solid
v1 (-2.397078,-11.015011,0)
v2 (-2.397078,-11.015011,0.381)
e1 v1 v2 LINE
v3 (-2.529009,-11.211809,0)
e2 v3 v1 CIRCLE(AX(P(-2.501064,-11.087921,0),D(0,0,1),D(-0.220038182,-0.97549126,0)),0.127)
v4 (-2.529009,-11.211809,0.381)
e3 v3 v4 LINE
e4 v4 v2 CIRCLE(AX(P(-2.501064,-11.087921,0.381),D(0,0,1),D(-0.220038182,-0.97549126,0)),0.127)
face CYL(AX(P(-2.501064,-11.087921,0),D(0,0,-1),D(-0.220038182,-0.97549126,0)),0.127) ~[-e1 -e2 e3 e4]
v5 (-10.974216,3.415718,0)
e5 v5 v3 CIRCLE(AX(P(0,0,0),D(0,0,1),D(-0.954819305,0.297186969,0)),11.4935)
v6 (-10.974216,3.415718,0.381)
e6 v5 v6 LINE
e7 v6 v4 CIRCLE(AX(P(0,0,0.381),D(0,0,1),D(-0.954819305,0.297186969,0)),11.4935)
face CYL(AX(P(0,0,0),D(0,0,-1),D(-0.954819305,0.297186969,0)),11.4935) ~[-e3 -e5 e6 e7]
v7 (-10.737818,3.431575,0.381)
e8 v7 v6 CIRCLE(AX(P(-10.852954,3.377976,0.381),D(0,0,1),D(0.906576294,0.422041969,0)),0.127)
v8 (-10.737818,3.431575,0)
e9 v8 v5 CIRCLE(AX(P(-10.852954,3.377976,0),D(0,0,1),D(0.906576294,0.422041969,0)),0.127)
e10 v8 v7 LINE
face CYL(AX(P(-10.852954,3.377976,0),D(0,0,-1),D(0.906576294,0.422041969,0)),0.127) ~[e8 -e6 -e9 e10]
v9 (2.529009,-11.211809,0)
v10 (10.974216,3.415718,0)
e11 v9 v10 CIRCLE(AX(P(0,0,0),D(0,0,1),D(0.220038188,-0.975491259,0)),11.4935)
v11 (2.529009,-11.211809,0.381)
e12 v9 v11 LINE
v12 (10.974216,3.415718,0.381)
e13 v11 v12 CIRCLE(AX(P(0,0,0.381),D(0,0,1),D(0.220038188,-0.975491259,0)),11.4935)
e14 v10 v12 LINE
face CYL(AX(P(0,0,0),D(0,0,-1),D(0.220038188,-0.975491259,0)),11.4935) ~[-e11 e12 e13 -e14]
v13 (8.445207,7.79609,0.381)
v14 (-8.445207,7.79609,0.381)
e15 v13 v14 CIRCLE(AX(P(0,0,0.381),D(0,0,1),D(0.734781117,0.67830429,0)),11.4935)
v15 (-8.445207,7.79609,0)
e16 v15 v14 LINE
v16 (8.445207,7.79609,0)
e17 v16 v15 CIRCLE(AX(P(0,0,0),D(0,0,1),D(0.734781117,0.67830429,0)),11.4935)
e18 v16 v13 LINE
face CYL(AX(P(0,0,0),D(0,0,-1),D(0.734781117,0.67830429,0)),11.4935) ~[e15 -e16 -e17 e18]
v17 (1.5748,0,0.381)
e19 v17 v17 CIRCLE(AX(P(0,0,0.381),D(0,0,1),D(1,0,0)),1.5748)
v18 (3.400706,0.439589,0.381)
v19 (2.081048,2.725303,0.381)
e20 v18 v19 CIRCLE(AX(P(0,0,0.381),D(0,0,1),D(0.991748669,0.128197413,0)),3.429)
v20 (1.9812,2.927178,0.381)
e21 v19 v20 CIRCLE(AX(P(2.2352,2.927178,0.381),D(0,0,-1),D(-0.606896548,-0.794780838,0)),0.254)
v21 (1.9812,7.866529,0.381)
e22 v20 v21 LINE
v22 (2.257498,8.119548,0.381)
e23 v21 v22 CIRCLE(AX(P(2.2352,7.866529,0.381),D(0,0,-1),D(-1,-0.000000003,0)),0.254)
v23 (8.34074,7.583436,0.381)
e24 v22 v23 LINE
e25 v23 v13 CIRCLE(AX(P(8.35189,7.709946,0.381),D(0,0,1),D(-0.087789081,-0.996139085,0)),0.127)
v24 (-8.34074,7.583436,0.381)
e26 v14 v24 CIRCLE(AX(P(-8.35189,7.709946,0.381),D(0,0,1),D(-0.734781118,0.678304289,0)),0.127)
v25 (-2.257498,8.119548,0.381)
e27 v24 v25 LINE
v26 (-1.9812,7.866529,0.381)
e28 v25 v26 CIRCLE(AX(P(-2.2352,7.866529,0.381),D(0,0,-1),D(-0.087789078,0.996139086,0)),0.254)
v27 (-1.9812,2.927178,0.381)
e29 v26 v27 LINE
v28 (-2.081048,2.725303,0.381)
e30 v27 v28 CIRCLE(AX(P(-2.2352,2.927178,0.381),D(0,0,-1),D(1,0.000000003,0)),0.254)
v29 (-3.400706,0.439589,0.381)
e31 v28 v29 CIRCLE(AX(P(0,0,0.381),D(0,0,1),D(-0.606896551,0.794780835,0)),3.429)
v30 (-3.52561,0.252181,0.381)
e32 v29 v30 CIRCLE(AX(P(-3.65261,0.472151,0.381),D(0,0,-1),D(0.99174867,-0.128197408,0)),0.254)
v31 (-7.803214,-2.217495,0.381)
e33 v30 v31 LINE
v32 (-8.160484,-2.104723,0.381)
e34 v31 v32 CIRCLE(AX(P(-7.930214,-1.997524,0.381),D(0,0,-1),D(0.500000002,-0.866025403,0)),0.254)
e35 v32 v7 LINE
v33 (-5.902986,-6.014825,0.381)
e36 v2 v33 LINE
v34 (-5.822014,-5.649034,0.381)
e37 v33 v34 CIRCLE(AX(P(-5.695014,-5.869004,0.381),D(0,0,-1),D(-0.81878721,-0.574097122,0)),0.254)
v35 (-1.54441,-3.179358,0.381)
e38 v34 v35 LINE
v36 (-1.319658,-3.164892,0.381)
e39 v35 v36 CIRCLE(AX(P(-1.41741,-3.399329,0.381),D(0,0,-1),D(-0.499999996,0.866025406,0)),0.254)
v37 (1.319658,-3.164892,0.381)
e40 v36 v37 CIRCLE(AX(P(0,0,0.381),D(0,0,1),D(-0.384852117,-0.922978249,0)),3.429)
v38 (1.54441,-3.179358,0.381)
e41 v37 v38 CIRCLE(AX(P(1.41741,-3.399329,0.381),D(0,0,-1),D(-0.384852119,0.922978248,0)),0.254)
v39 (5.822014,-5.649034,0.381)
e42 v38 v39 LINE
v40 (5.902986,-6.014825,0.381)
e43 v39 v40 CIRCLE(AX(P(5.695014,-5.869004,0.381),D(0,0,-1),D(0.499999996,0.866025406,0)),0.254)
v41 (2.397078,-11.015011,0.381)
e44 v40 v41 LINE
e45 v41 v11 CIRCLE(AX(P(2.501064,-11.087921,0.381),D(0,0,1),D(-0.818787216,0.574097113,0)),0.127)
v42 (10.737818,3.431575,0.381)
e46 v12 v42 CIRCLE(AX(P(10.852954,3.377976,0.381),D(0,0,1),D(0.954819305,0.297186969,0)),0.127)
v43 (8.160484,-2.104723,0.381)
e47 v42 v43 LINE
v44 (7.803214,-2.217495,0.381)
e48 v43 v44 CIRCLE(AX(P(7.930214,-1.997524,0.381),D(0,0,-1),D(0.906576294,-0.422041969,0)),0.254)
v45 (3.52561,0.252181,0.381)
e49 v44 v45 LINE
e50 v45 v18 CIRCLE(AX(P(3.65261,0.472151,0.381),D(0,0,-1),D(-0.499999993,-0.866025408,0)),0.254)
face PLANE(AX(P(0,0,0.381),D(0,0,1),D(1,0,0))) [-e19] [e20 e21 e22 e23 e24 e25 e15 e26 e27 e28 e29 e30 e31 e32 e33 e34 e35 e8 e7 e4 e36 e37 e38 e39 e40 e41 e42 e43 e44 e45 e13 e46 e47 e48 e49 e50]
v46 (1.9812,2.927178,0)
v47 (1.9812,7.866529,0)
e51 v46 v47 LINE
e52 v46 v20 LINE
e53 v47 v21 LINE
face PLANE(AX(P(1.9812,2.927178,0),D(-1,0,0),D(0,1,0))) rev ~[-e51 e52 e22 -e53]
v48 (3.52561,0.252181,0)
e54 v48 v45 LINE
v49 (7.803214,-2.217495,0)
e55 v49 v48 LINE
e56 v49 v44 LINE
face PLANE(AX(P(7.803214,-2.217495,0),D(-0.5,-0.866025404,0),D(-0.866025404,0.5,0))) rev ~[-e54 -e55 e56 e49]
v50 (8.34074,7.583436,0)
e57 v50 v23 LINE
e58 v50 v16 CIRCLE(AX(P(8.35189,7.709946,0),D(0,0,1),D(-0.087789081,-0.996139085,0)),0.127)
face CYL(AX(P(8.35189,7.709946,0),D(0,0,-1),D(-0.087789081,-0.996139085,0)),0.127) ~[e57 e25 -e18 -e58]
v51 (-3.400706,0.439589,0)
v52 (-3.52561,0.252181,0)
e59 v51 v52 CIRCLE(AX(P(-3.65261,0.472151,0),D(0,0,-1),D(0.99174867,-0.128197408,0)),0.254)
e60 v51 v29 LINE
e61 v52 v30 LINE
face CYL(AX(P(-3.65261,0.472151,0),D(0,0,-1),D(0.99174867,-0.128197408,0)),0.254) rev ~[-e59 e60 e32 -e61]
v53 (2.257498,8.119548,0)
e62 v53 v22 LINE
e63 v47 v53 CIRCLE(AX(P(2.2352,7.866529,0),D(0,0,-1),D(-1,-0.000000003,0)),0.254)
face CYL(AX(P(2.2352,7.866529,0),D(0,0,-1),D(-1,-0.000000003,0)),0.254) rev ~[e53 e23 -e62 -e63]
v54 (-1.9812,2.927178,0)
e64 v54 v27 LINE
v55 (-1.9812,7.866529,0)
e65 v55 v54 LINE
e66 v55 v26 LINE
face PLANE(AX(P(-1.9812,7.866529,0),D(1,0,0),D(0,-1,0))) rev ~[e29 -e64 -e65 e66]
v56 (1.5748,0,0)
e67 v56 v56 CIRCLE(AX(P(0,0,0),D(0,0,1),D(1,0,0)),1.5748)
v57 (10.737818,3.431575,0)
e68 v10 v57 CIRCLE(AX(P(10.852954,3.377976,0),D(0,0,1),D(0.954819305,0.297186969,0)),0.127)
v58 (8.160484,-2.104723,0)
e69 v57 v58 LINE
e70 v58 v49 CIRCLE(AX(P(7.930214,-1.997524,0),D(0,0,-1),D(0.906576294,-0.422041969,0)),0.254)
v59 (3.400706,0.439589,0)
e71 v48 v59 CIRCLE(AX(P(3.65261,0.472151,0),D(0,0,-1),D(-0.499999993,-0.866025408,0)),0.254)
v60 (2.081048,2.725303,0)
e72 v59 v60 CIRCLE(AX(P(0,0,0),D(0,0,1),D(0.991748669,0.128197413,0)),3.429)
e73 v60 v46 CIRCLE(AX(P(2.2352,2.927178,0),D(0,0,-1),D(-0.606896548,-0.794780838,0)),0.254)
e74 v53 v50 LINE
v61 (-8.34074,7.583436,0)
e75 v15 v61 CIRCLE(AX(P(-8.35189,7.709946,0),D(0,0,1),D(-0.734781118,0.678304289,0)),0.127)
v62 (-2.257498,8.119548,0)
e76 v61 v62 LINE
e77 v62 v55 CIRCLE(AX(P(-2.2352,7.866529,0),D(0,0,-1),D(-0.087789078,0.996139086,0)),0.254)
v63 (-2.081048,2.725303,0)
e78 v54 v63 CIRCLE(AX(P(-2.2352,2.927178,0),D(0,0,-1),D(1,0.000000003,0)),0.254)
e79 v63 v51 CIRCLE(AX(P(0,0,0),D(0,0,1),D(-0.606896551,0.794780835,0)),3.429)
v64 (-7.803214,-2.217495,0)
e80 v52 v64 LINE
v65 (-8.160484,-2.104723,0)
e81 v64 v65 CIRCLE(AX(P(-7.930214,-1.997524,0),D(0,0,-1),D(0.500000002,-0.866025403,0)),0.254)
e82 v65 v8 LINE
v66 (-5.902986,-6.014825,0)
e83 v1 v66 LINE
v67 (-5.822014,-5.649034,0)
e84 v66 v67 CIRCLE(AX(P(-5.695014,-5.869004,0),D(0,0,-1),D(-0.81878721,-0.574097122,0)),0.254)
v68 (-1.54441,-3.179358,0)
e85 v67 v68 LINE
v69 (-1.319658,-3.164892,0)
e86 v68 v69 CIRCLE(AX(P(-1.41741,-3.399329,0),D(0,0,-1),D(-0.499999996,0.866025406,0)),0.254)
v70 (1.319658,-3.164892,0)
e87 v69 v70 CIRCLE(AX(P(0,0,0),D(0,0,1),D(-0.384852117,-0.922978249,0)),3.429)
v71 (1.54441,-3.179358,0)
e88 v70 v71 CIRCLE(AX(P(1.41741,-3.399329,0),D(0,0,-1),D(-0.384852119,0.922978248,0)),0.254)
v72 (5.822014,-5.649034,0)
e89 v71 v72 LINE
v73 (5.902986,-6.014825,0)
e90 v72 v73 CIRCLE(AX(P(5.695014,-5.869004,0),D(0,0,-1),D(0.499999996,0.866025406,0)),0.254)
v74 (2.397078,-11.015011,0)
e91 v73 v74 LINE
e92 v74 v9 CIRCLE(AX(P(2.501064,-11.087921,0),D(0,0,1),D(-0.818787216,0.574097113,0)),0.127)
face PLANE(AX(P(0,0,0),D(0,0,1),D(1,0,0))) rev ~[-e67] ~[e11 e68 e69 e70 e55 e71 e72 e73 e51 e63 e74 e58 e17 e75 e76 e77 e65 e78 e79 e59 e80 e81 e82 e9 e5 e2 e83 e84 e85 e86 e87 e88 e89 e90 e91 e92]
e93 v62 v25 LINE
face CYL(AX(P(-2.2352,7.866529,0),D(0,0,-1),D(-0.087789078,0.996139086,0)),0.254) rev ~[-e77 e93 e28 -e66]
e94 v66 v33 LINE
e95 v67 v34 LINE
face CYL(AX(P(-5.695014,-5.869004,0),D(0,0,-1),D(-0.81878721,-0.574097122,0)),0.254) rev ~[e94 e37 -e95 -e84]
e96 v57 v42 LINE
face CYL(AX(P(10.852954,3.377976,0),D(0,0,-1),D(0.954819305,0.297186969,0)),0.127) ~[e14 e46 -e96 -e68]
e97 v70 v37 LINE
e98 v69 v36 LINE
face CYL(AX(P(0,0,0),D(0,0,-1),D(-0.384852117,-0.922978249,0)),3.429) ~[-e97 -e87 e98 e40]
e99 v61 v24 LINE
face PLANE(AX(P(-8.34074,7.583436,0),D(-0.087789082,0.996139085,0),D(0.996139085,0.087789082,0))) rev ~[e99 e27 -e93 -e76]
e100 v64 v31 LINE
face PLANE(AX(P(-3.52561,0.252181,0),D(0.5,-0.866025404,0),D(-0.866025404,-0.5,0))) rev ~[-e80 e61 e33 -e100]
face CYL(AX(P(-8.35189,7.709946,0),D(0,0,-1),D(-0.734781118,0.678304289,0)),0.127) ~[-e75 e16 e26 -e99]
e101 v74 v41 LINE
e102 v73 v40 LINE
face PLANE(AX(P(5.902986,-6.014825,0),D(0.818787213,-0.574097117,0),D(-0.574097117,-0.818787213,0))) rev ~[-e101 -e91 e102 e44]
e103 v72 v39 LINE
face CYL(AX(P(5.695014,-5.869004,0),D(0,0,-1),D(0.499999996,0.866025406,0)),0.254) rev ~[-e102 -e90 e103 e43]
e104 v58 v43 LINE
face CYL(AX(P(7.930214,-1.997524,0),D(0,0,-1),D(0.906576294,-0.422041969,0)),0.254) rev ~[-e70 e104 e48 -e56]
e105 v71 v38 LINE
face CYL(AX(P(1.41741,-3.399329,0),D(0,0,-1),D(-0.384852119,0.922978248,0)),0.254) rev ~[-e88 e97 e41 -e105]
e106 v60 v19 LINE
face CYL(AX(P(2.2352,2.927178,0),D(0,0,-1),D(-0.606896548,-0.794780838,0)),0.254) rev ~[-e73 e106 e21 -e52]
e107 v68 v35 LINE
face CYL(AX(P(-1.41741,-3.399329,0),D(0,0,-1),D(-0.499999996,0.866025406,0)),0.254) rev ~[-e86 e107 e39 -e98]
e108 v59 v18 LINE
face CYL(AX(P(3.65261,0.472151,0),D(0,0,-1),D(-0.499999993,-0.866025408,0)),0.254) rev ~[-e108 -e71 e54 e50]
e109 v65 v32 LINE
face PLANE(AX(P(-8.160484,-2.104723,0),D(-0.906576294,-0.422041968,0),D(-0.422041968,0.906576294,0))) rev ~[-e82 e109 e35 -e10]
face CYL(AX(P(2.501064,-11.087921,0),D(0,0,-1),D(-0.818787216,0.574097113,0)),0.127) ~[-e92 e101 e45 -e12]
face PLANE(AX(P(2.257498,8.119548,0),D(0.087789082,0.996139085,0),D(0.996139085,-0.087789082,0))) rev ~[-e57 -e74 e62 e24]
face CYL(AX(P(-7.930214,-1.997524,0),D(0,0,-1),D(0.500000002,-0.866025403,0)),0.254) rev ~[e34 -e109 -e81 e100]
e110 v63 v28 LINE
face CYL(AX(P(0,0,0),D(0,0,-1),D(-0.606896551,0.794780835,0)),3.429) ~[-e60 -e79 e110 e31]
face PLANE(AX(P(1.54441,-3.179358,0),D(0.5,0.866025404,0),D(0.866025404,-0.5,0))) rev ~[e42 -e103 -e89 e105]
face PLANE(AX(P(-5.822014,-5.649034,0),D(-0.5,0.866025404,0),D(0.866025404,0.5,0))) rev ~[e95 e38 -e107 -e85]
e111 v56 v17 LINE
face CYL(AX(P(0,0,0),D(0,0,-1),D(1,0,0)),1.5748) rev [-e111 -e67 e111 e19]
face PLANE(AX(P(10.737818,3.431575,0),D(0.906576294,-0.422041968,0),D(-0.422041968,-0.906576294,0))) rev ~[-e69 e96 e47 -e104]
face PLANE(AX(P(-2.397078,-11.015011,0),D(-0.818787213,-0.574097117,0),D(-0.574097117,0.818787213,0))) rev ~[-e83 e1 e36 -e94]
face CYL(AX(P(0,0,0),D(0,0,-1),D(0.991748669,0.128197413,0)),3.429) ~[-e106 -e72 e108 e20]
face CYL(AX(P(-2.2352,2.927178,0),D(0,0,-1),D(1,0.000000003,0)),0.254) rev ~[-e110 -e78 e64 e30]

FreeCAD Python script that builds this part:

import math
import FreeCAD as App
import Part
import Sketcher
from FreeCAD import Vector
Q = App.Units.Quantity

doc = App.newDocument("Part")
body = doc.addObject("PartDesign::Body", "Body")

# Sketch on XY plane
sketch1 = body.newObject("Sketcher::SketchObject", "Sketch")
sketch1.AttachmentSupport = (doc.getObject("XY_Plane"), [""])
sketch1.MapMode = "FlatFace"
sketch1.addGeometry([
    Part.LineSegment(Vector(1.9812, 2.927178, 0), Vector(1.9812, 7.866529, 0)),  # 0
    Part.ArcOfCircle(Part.Circle(Vector(2.2352, 7.866529, 0), Vector(0, 0, 1), 0.254), math.radians(84.963573), math.radians(180)),  # 1
    Part.LineSegment(Vector(2.257498, 8.119548, 0), Vector(8.34074, 7.583436, 0)),  # 2
    Part.ArcOfCircle(Part.Circle(Vector(8.35189, 7.709946, 0), Vector(0, 0, 1), 0.127), math.radians(-95.036427), math.radians(42.711276)),  # 3
    Part.ArcOfCircle(Part.Circle(Vector(0, 0, 0), Vector(0, 0, 1), 11.4935), math.radians(42.711276), math.radians(137.288724)),  # 4
    Part.ArcOfCircle(Part.Circle(Vector(-8.35189, 7.709946, 0), Vector(0, 0, 1), 0.127), math.radians(137.288724), math.radians(275.036427)),  # 5
    Part.LineSegment(Vector(-8.34074, 7.583436, 0), Vector(-2.257498, 8.119548, 0)),  # 6
    Part.ArcOfCircle(Part.Circle(Vector(-2.2352, 7.866529, 0), Vector(0, 0, 1), 0.254), math.radians(0), math.radians(95.036427)),  # 7
    Part.LineSegment(Vector(-1.9812, 7.866529, 0), Vector(-1.9812, 2.927178, 0)),  # 8
    Part.ArcOfCircle(Part.Circle(Vector(-2.2352, 2.927178, 0), Vector(0, 0, 1), 0.254), math.radians(-52.63456), math.radians(0)),  # 9
    Part.ArcOfCircle(Part.Circle(Vector(0, 0, 0), Vector(0, 0, 1), 3.429), math.radians(127.36544), math.radians(172.63456)),  # 10
    Part.ArcOfCircle(Part.Circle(Vector(-3.65261, 0.472151, 0), Vector(0, 0, 1), 0.254), math.radians(-60), math.radians(-7.36544)),  # 11
    Part.LineSegment(Vector(-3.52561, 0.252181, 0), Vector(-7.803214, -2.217495, 0)),  # 12
    Part.ArcOfCircle(Part.Circle(Vector(-7.930214, -1.997524, 0), Vector(0, 0, 1), 0.254), math.radians(-155.036427), math.radians(-60)),  # 13
    Part.LineSegment(Vector(-8.160484, -2.104723, 0), Vector(-10.737818, 3.431575, 0)),  # 14
    Part.ArcOfCircle(Part.Circle(Vector(-10.852954, 3.377976, 0), Vector(0, 0, 1), 0.127), math.radians(24.963573), math.radians(162.711276)),  # 15
    Part.ArcOfCircle(Part.Circle(Vector(0, 0, 0), Vector(0, 0, 1), 11.4935), math.radians(162.711276), math.radians(257.288724)),  # 16
    Part.ArcOfCircle(Part.Circle(Vector(-2.501064, -11.087921, 0), Vector(0, 0, 1), 0.127), math.radians(-102.711276), math.radians(35.036427)),  # 17
    Part.LineSegment(Vector(-2.397078, -11.015011, 0), Vector(-5.902986, -6.014825, 0)),  # 18
    Part.ArcOfCircle(Part.Circle(Vector(-5.695014, -5.869004, 0), Vector(0, 0, 1), 0.254), math.radians(120), math.radians(215.036428)),  # 19
    Part.LineSegment(Vector(-5.822014, -5.649034, 0), Vector(-1.54441, -3.179358, 0)),  # 20
    Part.ArcOfCircle(Part.Circle(Vector(-1.41741, -3.399329, 0), Vector(0, 0, 1), 0.254), math.radians(67.36544), math.radians(120)),  # 21
    Part.ArcOfCircle(Part.Circle(Vector(0, 0, 0), Vector(0, 0, 1), 3.429), math.radians(-112.63456), math.radians(-67.36544)),  # 22
    Part.ArcOfCircle(Part.Circle(Vector(1.41741, -3.399329, 0), Vector(0, 0, 1), 0.254), math.radians(60), math.radians(112.63456)),  # 23
    Part.LineSegment(Vector(1.54441, -3.179358, 0), Vector(5.822014, -5.649034, 0)),  # 24
    Part.ArcOfCircle(Part.Circle(Vector(5.695014, -5.869004, 0), Vector(0, 0, 1), 0.254), math.radians(-35.036428), math.radians(60)),  # 25
    Part.LineSegment(Vector(5.902986, -6.014825, 0), Vector(2.397078, -11.015011, 0)),  # 26
    Part.ArcOfCircle(Part.Circle(Vector(2.501064, -11.087921, 0), Vector(0, 0, 1), 0.127), math.radians(144.963573), math.radians(282.711276)),  # 27
    Part.ArcOfCircle(Part.Circle(Vector(0, 0, 0), Vector(0, 0, 1), 11.4935), math.radians(-77.288724), math.radians(17.288724)),  # 28
    Part.ArcOfCircle(Part.Circle(Vector(10.852954, 3.377976, 0), Vector(0, 0, 1), 0.127), math.radians(17.288724), math.radians(155.036427)),  # 29
    Part.LineSegment(Vector(10.737818, 3.431575, 0), Vector(8.160484, -2.104723, 0)),  # 30
    Part.ArcOfCircle(Part.Circle(Vector(7.930214, -1.997524, 0), Vector(0, 0, 1), 0.254), math.radians(-120), math.radians(-24.963573)),  # 31
    Part.LineSegment(Vector(7.803214, -2.217495, 0), Vector(3.52561, 0.252181, 0)),  # 32
    Part.ArcOfCircle(Part.Circle(Vector(3.65261, 0.472151, 0), Vector(0, 0, 1), 0.254), math.radians(-172.63456), math.radians(-120)),  # 33
    Part.ArcOfCircle(Part.Circle(Vector(0, 0, 0), Vector(0, 0, 1), 3.429), math.radians(7.36544), math.radians(52.63456)),  # 34
    Part.ArcOfCircle(Part.Circle(Vector(2.2352, 2.927178, 0), Vector(0, 0, 1), 0.254), math.radians(180), math.radians(232.63456)),  # 35
    Part.Circle(Vector(0, 0, 0), Vector(0, 0, 1), 1.5748),  # 36
], False)
sketch1.addConstraint([
    Sketcher.Constraint("Tangent", 0, 2, 1, 2),
    Sketcher.Constraint("Tangent", 1, 1, 2, 1),
    Sketcher.Constraint("Tangent", 2, 2, 3, 1),
    Sketcher.Constraint("Tangent", 3, 2, 4, 1),
    Sketcher.Constraint("Tangent", 4, 2, 5, 1),
    Sketcher.Constraint("Tangent", 5, 2, 6, 1),
    Sketcher.Constraint("Tangent", 6, 2, 7, 2),
    Sketcher.Constraint("Tangent", 7, 1, 8, 1),
    Sketcher.Constraint("Tangent", 8, 2, 9, 2),
    Sketcher.Constraint("Tangent", 9, 1, 10, 1),
    Sketcher.Constraint("Tangent", 10, 2, 11, 2),
    Sketcher.Constraint("Tangent", 11, 1, 12, 1),
    Sketcher.Constraint("Tangent", 12, 2, 13, 2),
    Sketcher.Constraint("Tangent", 13, 1, 14, 1),
    Sketcher.Constraint("Tangent", 14, 2, 15, 1),
    Sketcher.Constraint("Tangent", 15, 2, 16, 1),
    Sketcher.Constraint("Tangent", 16, 2, 17, 1),
    Sketcher.Constraint("Tangent", 17, 2, 18, 1),
    Sketcher.Constraint("Tangent", 18, 2, 19, 2),
    Sketcher.Constraint("Tangent", 19, 1, 20, 1),
    Sketcher.Constraint("Tangent", 20, 2, 21, 2),
    Sketcher.Constraint("Tangent", 21, 1, 22, 1),
    Sketcher.Constraint("Tangent", 22, 2, 23, 2),
    Sketcher.Constraint("Tangent", 23, 1, 24, 1),
    Sketcher.Constraint("Tangent", 24, 2, 25, 2),
    Sketcher.Constraint("Tangent", 25, 1, 26, 1),
    Sketcher.Constraint("Tangent", 26, 2, 27, 1),
    Sketcher.Constraint("Tangent", 27, 2, 28, 1),
    Sketcher.Constraint("Tangent", 28, 2, 29, 1),
    Sketcher.Constraint("Tangent", 29, 2, 30, 1),
    Sketcher.Constraint("Tangent", 30, 2, 31, 2),
    Sketcher.Constraint("Tangent", 31, 1, 32, 1),
    Sketcher.Constraint("Tangent", 32, 2, 33, 2),
    Sketcher.Constraint("Tangent", 33, 1, 34, 1),
    Sketcher.Constraint("Tangent", 34, 2, 35, 2),
    Sketcher.Constraint("Tangent", 35, 1, 0, 1),
    Sketcher.Constraint("Vertical", 0),
    Sketcher.Constraint("Vertical", 8),
    Sketcher.Constraint("Coincident", 4, 3, -1, 1),
    Sketcher.Constraint("Coincident", 10, 3, -1, 1),
    Sketcher.Constraint("Coincident", 16, 3, -1, 1),
    Sketcher.Constraint("Coincident", 22, 3, -1, 1),
    Sketcher.Constraint("Coincident", 28, 3, -1, 1),
    Sketcher.Constraint("Coincident", 34, 3, -1, 1),
    Sketcher.Constraint("Coincident", 36, 3, -1, 1),
    Sketcher.Constraint("Equal", 3, 5),
    Sketcher.Constraint("Equal", 1, 7),
    Sketcher.Constraint("Equal", 7, 9),
    Sketcher.Constraint("Equal", 9, 11),
    Sketcher.Constraint("Equal", 11, 13),
    Sketcher.Constraint("Equal", 5, 15),
    Sketcher.Constraint("Equal", 4, 16),
    Sketcher.Constraint("Equal", 15, 17),
    Sketcher.Constraint("Equal", 13, 19),
    Sketcher.Constraint("Equal", 19, 21),
    Sketcher.Constraint("Equal", 10, 22),
    Sketcher.Constraint("Equal", 21, 23),
    Sketcher.Constraint("Equal", 23, 25),
    Sketcher.Constraint("Equal", 17, 27),
    Sketcher.Constraint("Equal", 16, 28),
    Sketcher.Constraint("Equal", 27, 29),
    Sketcher.Constraint("Equal", 25, 31),
    Sketcher.Constraint("Equal", 31, 33),
    Sketcher.Constraint("Equal", 22, 34),
    Sketcher.Constraint("Equal", 33, 35),
    Sketcher.Constraint("Symmetric", 1, 3, 7, 3, -2),
    Sketcher.Constraint("Symmetric", 19, 3, 25, 3, -2),
    Sketcher.Constraint("Symmetric", 13, 3, 31, 3, -2),
    Sketcher.Constraint("Parallel", 12, 20),
    Sketcher.Constraint("Parallel", 24, 32),
    Sketcher.Constraint("Horizontal", 3, 3, 5, 3),
    Sketcher.Constraint("Horizontal", 21, 3, 23, 3),
    Sketcher.Constraint("Horizontal", 17, 3, 27, 3),
    Sketcher.Constraint("Horizontal", 15, 3, 29, 3),
    Sketcher.Constraint("Equal", 6, 14),
    Sketcher.Constraint("Equal", 14, 18),
    Sketcher.Constraint("Equal", 12, 20),
    Sketcher.Constraint("Radius", 1, Q("0.01 in")),
    Sketcher.Constraint("Diameter", 36, Q("0.124 in")),
    Sketcher.Constraint("Angle", 12, Q("-150 deg")),
    Sketcher.Constraint("Radius", 3, Q("0.005 in")),
    Sketcher.Constraint("Radius", 10, Q("0.135 in")),
    Sketcher.Constraint("Radius", 4, Q("0.4525 in")),
    Sketcher.Constraint("DistanceX", -1, 1, 1, 3, Q("0.088 in")),
    Sketcher.Constraint("DistanceY", 0, 1, 0, 2, 4.939351),
    Sketcher.Constraint("DistanceX", -1, 1, 1, 1, 2.257498),
    Sketcher.Constraint("Distance", 12, 4.939351),
    Sketcher.Constraint("DistanceX", 11, 3, -1, 1, 3.65261),
    Sketcher.Constraint("DistanceY", 17, 3, -1, 1, 11.087921),
])
pad1 = body.newObject("PartDesign::Pad", "Pad")
pad1.Profile = sketch1
pad1.Length = Q("0.015 in")

doc.recompute()
